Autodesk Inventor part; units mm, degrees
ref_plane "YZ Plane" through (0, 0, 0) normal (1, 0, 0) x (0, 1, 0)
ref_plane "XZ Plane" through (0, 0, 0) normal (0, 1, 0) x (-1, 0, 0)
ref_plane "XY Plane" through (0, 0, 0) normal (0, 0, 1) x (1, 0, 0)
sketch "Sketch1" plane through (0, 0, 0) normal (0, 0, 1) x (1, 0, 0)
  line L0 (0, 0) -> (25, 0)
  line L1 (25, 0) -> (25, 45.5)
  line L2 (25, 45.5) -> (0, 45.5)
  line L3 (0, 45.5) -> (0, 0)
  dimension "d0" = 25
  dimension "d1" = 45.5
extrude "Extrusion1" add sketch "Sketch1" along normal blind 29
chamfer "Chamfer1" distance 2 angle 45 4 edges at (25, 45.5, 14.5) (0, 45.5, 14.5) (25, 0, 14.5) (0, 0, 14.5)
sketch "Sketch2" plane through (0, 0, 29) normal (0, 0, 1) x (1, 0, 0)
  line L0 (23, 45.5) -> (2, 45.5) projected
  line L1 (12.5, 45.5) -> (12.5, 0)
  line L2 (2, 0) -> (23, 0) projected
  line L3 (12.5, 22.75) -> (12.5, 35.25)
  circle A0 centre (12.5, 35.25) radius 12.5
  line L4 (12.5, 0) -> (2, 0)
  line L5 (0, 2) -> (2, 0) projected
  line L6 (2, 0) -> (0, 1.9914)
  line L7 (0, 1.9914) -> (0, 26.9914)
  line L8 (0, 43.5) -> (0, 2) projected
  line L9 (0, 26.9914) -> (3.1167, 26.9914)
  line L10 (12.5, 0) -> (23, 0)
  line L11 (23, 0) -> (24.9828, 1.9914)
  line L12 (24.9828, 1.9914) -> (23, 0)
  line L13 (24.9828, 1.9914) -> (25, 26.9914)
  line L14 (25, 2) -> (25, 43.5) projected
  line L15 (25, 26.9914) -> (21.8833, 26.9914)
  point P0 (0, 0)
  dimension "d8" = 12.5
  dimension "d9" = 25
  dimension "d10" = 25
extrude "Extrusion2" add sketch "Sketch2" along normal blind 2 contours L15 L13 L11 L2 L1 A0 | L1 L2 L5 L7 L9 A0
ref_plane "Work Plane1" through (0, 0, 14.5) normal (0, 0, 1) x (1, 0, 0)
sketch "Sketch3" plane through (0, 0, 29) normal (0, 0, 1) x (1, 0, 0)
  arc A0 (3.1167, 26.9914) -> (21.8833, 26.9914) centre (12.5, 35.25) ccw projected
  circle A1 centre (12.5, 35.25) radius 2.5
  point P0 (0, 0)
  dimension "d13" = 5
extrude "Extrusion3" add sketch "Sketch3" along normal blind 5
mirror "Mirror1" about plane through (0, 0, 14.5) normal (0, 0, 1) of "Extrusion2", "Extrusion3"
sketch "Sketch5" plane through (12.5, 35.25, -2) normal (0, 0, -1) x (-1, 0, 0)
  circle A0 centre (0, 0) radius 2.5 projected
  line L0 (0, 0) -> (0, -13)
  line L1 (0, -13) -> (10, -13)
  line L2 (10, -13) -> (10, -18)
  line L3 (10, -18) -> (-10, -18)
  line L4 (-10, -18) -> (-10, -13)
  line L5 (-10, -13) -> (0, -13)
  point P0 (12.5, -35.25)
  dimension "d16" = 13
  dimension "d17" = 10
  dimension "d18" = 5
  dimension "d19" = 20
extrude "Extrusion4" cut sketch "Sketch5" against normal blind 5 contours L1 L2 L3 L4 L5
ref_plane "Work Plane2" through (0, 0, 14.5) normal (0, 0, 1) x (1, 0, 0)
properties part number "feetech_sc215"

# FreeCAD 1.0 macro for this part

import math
import FreeCAD as App
import Part
import Sketcher

V = App.Vector
Q = App.Units.Quantity


def edges_at(feature, points):
    """Names of the edges that pass closest to the given points."""
    edges = feature.Shape.Edges
    near = lambda p: min(range(len(edges)), key=lambda i: edges[i].distToShape(Part.Vertex(*p))[0])
    return sorted({f"Edge{near(p) + 1}" for p in points})

doc = App.newDocument("Part")
params = doc.addObject("Spreadsheet::Sheet", "Params")
for row, (alias, value) in enumerate([
    ("sketch1_width", "25 mm"),
    ("sketch1_height", "45.5 mm"),
    ("pad1_length", "29 mm"),
    ("chamfer_size", "2 mm"),
    ("sketch2_radius", "12.5 mm"),
    ("sketch2_length", "25 mm"),
    ("sketch2_width", "21 mm"),
    ("pad2_length", "2 mm"),
    ("sketch3_diameter", "5 mm"),
    ("pad3_length", "5 mm"),
    ("sketch4_width", "20 mm"),
    ("sketch4_height", "5 mm"),
    ("pocket1_length", "5 mm"),
], start=1):
    params.set(f"A{row}", alias)
    params.set(f"B{row}", "=" + value)
    params.setAlias(f"B{row}", alias)

body = doc.addObject("PartDesign::Body", "Body")

sketch1 = body.newObject("Sketcher::SketchObject", "Sketch")
sketch1.AttachmentSupport = (doc.getObject("XY_Plane"), [""])
sketch1.MapMode = "FlatFace"
sketch1.addGeometry([
    Part.LineSegment(V(0, 45.5, 0), V(0, 0, 0)),
    Part.LineSegment(V(0, 0, 0), V(25, 0, 0)),
    Part.LineSegment(V(25, 0, 0), V(25, 45.5, 0)),
    Part.LineSegment(V(25, 45.5, 0), V(0, 45.5, 0)),
], False)
sketch1.addConstraint([
    Sketcher.Constraint("Coincident", 0, 2, 1, 1),
    Sketcher.Constraint("Coincident", 1, 2, 2, 1),
    Sketcher.Constraint("Coincident", 2, 2, 3, 1),
    Sketcher.Constraint("Coincident", 3, 2, 0, 1),
    Sketcher.Constraint("Vertical", 0),
    Sketcher.Constraint("Horizontal", 1),
    Sketcher.Constraint("Vertical", 2),
    Sketcher.Constraint("Horizontal", 3),
    Sketcher.Constraint("Coincident", 0, 2, -1, 1),
    Sketcher.Constraint("DistanceX", 1, 1, 1, 2, Q("25 mm")),
    Sketcher.Constraint("DistanceY", 0, 2, 0, 1, Q("45.5 mm")),
])
sketch1.setExpression("Constraints[9]", "Params.sketch1_width")
sketch1.setExpression("Constraints[10]", "Params.sketch1_height")
pad1 = body.newObject("PartDesign::Pad", "Pad")
pad1.Profile = sketch1
pad1.setExpression("Length", "Params.pad1_length")
doc.recompute()

chamfer = body.newObject("PartDesign::Chamfer", "Chamfer")
chamfer.Base = (pad1, edges_at(pad1, [
    (25, 45.5, 14.5),
    (0, 45.5, 14.5),
    (25, 0, 14.5),
    (0, 0, 14.5),
]))
chamfer.setExpression("Size", "Params.chamfer_size")

sketch2 = body.newObject("Sketcher::SketchObject", "Sketch001")
sketch2.AttachmentSupport = (doc.getObject("XY_Plane"), [""])
sketch2.MapMode = "FlatFace"
sketch2.AttachmentOffset = App.Placement(V(0, 0, 29), App.Rotation())
sketch2.addGeometry([
    Part.LineSegment(V(25, 26.9914, 0), V(21.8833, 26.9914, 0)),
    Part.ArcOfCircle(Part.Circle(V(12.5, 35.25, 0), V(0, 0, 1), 12.5), math.radians(-138.647763), math.radians(-41.352237)),
    Part.LineSegment(V(3.1167, 26.9914, 0), V(0, 26.9914, 0)),
    Part.LineSegment(V(0, 26.9914, 0), V(0, 2, 0)),
    Part.LineSegment(V(0, 2, 0), V(2, 0, 0)),
    Part.LineSegment(V(2, 0, 0), V(23, 0, 0)),
    Part.LineSegment(V(23, 0, 0), V(24.9828, 1.9914, 0)),
    Part.LineSegment(V(24.9828, 1.9914, 0), V(25, 26.9914, 0)),
], False)
sketch2.addConstraint([
    Sketcher.Constraint("Coincident", 0, 2, 1, 2),
    Sketcher.Constraint("Coincident", 1, 1, 2, 1),
    Sketcher.Constraint("Coincident", 2, 2, 3, 1),
    Sketcher.Constraint("Coincident", 3, 2, 4, 1),
    Sketcher.Constraint("Coincident", 4, 2, 5, 1),
    Sketcher.Constraint("Coincident", 5, 2, 6, 1),
    Sketcher.Constraint("Coincident", 6, 2, 7, 1),
    Sketcher.Constraint("Coincident", 7, 2, 0, 1),
    Sketcher.Constraint("Horizontal", 0),
    Sketcher.Constraint("Horizontal", 2),
    Sketcher.Constraint("Vertical", 3),
    Sketcher.Constraint("Horizontal", 5),
    Sketcher.Constraint("PointOnObject", 2, 2, -2),
    Sketcher.Constraint("PointOnObject", 4, 2, -1),
    Sketcher.Constraint("Horizontal", 0, 2, 1, 1),
    Sketcher.Constraint("Equal", 0, 2),
    Sketcher.Constraint("Radius", 1, Q("12.5 mm")),
    Sketcher.Constraint("Distance", 7, Q("25 mm")),
    Sketcher.Constraint("DistanceX", -1, 1, 7, 2, Q("25 mm")),
    Sketcher.Constraint("DistanceX", 5, 1, 5, 2, Q("21 mm")),
    Sketcher.Constraint("Angle", 4, Q("-45 deg")),
    Sketcher.Constraint("DistanceY", -1, 1, 3, 2, Q("2 mm")),
    Sketcher.Constraint("Angle", 7, Q("89.9606 deg")),
    Sketcher.Constraint("DistanceY", -1, 1, 1, 3, Q("35.25 mm")),
    Sketcher.Constraint("DistanceX", 0, 2, 0, 1, Q("3.1167 mm")),
])
sketch2.setExpression("Constraints[16]", "Params.sketch2_radius")
sketch2.setExpression("Constraints[17]", "Params.sketch2_length")
sketch2.setExpression("Constraints[19]", "Params.sketch2_width")
pad2 = body.newObject("PartDesign::Pad", "Pad001")
pad2.Profile = sketch2
pad2.setExpression("Length", "Params.pad2_length")

sketch3 = body.newObject("Sketcher::SketchObject", "Sketch002")
sketch3.AttachmentSupport = (doc.getObject("XY_Plane"), [""])
sketch3.MapMode = "FlatFace"
sketch3.AttachmentOffset = App.Placement(V(0, 0, 29), App.Rotation())
sketch3.addGeometry(Part.Circle(V(12.5, 35.25, 0), V(0, 0, 1), 2.5), False)
sketch3.addConstraint([
    Sketcher.Constraint("Diameter", 0, Q("5 mm")),
    Sketcher.Constraint("DistanceX", -1, 1, 0, 3, Q("12.5 mm")),
    Sketcher.Constraint("DistanceY", -1, 1, 0, 3, Q("35.25 mm")),
])
sketch3.setExpression("Constraints[0]", "Params.sketch3_diameter")
pad3 = body.newObject("PartDesign::Pad", "Pad002")
pad3.Profile = sketch3
pad3.setExpression("Length", "Params.pad3_length")
doc.recompute()

datumplane = body.newObject("PartDesign::Plane", "DatumPlane")
datumplane.AttachmentSupport = (doc.getObject("XY_Plane"), [""])
datumplane.MapMode = "FlatFace"
datumplane.AttachmentOffset = App.Placement(V(0, 0, 14.5), App.Rotation())
mirrored = body.newObject("PartDesign::Mirrored", "Mirrored")
mirrored.Originals = [pad2, pad3]
mirrored.MirrorPlane = (datumplane, [""])
body.Tip = mirrored

sketch4 = body.newObject("Sketcher::SketchObject", "Sketch003")
sketch4.AttachmentSupport = (doc.getObject("XY_Plane"), [""])
sketch4.MapMode = "FlatFace"
sketch4.AttachmentOffset = App.Placement(V(0, 0, -2), App.Rotation())
sketch4.addGeometry([
    Part.LineSegment(V(2.5, 22.25, 0), V(22.5, 22.25, 0)),
    Part.LineSegment(V(22.5, 22.25, 0), V(22.5, 17.25, 0)),
    Part.LineSegment(V(22.5, 17.25, 0), V(2.5, 17.25, 0)),
    Part.LineSegment(V(2.5, 17.25, 0), V(2.5, 22.25, 0)),
], False)
sketch4.addConstraint([
    Sketcher.Constraint("Coincident", 0, 2, 1, 1),
    Sketcher.Constraint("Coincident", 1, 2, 2, 1),
    Sketcher.Constraint("Coincident", 2, 2, 3, 1),
    Sketcher.Constraint("Coincident", 3, 2, 0, 1),
    Sketcher.Constraint("Horizontal", 0),
    Sketcher.Constraint("Vertical", 1),
    Sketcher.Constraint("Horizontal", 2),
    Sketcher.Constraint("Vertical", 3),
    Sketcher.Constraint("DistanceX", 0, 1, 0, 2, Q("20 mm")),
    Sketcher.Constraint("DistanceY", 1, 2, 1, 1, Q("5 mm")),
    Sketcher.Constraint("DistanceX", -1, 1, 0, 2, Q("22.5 mm")),
    Sketcher.Constraint("DistanceY", -1, 1, 0, 2, Q("22.25 mm")),
])
sketch4.setExpression("Constraints[8]", "Params.sketch4_width")
sketch4.setExpression("Constraints[9]", "Params.sketch4_height")
pocket1 = body.newObject("PartDesign::Pocket", "Pocket")
pocket1.Profile = sketch4
pocket1.setExpression("Length", "Params.pocket1_length")
pocket1.Reversed = True

doc.recompute()
